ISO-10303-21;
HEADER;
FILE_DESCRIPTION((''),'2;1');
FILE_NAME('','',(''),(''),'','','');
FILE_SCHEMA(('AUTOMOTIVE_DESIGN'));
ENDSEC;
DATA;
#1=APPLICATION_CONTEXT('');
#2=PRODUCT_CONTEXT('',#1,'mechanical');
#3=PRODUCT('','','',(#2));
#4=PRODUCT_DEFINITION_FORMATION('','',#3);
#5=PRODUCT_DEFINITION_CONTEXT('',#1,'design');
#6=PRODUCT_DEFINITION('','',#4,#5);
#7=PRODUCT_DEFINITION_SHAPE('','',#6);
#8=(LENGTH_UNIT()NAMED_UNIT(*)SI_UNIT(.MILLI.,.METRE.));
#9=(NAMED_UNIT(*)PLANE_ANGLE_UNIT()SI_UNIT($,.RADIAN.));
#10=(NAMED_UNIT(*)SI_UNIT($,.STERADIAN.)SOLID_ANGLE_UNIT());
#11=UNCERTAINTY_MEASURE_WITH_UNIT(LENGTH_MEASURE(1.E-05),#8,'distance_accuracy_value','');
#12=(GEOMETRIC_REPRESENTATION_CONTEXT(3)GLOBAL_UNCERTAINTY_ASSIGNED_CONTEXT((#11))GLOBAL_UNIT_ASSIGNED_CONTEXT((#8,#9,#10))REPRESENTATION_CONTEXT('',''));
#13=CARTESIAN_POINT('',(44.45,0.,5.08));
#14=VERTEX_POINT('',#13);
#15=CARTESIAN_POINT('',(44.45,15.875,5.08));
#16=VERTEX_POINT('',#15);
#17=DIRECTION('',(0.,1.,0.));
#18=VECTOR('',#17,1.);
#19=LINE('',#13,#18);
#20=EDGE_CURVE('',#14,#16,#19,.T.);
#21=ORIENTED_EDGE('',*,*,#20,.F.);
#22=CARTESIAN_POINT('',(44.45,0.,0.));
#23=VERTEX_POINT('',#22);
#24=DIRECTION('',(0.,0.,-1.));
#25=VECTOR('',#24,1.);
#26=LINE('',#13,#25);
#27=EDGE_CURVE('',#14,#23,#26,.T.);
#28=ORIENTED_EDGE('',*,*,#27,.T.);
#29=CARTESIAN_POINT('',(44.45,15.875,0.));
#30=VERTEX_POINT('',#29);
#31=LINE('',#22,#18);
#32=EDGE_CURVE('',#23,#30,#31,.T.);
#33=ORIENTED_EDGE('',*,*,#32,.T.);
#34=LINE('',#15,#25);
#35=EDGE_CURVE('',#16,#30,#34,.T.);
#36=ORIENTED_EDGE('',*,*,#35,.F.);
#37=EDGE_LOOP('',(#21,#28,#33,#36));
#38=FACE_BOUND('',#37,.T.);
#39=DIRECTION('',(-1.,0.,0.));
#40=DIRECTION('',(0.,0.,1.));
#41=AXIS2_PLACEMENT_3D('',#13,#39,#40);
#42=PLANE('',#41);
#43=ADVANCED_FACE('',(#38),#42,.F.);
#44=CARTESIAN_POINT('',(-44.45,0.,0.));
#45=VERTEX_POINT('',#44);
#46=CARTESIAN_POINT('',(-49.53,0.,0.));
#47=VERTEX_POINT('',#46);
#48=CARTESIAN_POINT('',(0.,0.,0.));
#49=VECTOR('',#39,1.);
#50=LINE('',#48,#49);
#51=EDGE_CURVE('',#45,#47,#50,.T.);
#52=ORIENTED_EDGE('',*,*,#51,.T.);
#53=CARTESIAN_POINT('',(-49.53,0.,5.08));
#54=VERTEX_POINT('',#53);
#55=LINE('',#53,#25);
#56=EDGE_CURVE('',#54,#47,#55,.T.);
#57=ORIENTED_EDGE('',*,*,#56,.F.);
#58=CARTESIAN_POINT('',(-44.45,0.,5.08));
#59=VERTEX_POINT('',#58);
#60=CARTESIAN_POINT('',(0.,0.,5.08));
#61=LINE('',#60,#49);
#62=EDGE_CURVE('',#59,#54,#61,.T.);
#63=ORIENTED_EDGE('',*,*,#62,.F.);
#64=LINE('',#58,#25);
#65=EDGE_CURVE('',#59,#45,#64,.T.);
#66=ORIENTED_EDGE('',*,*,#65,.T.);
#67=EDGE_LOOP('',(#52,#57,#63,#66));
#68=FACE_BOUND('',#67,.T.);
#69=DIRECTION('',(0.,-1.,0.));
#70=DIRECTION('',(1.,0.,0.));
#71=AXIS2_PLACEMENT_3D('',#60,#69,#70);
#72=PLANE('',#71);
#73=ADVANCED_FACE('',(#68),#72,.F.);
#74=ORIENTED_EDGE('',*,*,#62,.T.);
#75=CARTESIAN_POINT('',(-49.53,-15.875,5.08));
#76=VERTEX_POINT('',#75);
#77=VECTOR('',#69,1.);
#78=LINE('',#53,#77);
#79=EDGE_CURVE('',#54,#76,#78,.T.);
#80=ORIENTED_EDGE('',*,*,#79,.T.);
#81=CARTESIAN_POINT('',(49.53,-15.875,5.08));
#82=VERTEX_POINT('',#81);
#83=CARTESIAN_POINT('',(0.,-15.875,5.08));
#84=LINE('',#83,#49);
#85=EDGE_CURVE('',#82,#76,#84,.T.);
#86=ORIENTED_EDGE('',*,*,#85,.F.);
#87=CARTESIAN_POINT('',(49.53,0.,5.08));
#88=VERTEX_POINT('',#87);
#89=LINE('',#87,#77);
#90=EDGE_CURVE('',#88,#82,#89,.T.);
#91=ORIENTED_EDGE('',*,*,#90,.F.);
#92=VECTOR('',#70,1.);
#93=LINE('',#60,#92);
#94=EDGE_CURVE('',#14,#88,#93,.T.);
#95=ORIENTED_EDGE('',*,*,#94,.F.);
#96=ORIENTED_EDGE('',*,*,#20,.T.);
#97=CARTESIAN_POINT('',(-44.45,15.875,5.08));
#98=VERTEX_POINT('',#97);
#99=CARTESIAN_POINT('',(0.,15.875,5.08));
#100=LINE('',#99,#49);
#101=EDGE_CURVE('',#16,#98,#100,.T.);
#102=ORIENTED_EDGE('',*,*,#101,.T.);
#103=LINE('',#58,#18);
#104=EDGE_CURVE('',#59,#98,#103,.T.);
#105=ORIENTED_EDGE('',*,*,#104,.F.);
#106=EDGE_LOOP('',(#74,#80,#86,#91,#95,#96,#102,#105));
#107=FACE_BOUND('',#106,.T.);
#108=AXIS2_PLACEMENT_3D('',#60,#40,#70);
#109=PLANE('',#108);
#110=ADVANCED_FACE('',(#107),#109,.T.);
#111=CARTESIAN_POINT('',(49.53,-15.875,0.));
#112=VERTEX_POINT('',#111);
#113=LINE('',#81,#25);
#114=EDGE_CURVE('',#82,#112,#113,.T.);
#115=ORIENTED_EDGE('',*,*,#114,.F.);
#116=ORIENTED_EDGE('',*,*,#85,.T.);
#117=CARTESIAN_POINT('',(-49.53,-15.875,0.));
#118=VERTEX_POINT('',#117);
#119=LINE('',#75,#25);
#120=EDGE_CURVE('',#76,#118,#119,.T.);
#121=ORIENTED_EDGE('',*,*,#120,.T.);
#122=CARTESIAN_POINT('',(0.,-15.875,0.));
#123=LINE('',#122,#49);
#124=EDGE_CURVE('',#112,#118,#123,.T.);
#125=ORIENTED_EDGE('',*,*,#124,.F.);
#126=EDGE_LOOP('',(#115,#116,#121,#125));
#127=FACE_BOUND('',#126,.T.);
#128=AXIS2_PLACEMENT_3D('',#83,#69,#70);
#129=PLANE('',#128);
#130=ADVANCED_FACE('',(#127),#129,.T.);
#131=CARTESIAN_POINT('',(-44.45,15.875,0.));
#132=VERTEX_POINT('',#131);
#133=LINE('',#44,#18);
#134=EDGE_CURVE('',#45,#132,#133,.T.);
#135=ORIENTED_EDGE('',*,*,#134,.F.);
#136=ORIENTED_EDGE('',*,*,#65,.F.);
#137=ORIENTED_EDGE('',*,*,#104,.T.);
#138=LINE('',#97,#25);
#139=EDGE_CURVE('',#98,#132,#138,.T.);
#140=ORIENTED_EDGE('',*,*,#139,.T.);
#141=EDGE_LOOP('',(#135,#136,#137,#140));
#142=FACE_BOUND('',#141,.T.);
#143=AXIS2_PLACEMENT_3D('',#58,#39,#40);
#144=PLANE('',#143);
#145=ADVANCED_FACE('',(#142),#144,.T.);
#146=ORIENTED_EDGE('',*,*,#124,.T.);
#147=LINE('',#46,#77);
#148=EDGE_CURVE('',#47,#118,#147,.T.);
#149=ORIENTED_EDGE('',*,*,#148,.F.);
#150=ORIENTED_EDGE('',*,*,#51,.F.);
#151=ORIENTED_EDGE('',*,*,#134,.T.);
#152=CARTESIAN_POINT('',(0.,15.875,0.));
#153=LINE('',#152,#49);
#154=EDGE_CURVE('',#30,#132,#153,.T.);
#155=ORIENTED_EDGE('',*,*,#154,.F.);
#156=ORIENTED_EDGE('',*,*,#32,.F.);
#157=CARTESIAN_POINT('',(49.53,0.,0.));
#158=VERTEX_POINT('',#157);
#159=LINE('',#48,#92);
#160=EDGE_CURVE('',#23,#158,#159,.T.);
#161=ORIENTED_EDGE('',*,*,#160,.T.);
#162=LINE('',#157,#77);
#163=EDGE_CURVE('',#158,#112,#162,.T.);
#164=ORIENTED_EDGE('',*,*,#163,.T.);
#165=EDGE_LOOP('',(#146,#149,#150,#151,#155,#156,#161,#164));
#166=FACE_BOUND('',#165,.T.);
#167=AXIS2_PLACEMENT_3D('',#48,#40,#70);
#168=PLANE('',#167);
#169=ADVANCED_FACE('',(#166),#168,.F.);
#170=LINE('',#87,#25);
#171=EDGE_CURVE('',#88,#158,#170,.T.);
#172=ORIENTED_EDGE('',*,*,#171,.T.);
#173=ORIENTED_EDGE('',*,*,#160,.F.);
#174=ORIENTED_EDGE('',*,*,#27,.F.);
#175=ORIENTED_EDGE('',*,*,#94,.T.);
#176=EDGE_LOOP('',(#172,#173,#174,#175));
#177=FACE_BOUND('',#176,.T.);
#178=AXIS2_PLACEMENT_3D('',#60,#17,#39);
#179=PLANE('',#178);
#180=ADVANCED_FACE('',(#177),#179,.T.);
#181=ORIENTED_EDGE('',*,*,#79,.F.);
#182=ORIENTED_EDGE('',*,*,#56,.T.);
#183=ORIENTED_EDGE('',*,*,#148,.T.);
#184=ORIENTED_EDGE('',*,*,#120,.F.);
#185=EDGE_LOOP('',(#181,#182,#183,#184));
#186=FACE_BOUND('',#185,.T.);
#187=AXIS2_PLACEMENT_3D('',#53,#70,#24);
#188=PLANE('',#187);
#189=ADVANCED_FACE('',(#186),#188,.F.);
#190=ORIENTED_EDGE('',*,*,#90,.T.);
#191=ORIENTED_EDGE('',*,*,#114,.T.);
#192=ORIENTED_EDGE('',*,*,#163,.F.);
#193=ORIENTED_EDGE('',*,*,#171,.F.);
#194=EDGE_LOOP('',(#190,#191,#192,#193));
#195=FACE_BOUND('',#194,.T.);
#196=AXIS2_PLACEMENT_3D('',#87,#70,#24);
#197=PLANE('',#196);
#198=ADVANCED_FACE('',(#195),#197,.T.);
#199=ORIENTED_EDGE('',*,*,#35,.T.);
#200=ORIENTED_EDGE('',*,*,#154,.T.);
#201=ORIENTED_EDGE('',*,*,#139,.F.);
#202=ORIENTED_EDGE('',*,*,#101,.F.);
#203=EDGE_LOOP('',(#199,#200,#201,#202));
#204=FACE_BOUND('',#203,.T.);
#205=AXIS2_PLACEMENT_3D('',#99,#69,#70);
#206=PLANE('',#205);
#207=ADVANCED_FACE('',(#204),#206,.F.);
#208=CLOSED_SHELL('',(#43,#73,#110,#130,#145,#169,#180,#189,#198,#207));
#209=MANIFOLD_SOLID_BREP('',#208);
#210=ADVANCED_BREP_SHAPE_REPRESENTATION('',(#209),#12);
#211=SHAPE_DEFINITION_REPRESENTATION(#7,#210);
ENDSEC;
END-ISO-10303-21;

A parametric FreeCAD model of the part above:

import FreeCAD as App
import Part
import Sketcher
Q = App.Units.Quantity

doc = App.newDocument("Part")
body = doc.addObject("PartDesign::Body", "Body")

sketch1 = doc.addObject("Sketcher::SketchObject", "Sketch")
body.addObject(sketch1)
sketch1.AttachmentSupport = (doc.XY_Plane, [""])
sketch1.MapMode = "FlatFace"
sketch1.addGeometry([
    Part.LineSegment(App.Vector(-50, 0, 0), App.Vector(-50, -16, 0)),
    Part.LineSegment(App.Vector(-50, -16, 0), App.Vector(50, -16, 0)),
    Part.LineSegment(App.Vector(50, -16, 0), App.Vector(50, 0, 0)),
    Part.LineSegment(App.Vector(50, 0, 0), App.Vector(44, 0, 0)),
    Part.LineSegment(App.Vector(44, 0, 0), App.Vector(44, 16, 0)),
    Part.LineSegment(App.Vector(44, 16, 0), App.Vector(-44, 16, 0)),
    Part.LineSegment(App.Vector(-44, 16, 0), App.Vector(-44, 0, 0)),
    Part.LineSegment(App.Vector(-44, 0, 0), App.Vector(-50, 0, 0)),
], False)
sketch1.addConstraint([
    Sketcher.Constraint("Coincident", 0, 2, 1, 1),
    Sketcher.Constraint("Coincident", 1, 2, 2, 1),
    Sketcher.Constraint("Coincident", 2, 2, 3, 1),
    Sketcher.Constraint("Coincident", 3, 2, 4, 1),
    Sketcher.Constraint("Coincident", 4, 2, 5, 1),
    Sketcher.Constraint("Coincident", 5, 2, 6, 1),
    Sketcher.Constraint("Coincident", 6, 2, 7, 1),
    Sketcher.Constraint("Coincident", 7, 2, 0, 1),
    Sketcher.Constraint("Vertical", 0),
    Sketcher.Constraint("Horizontal", 1),
    Sketcher.Constraint("Vertical", 2),
    Sketcher.Constraint("Horizontal", 3),
    Sketcher.Constraint("Vertical", 4),
    Sketcher.Constraint("Horizontal", 5),
    Sketcher.Constraint("Vertical", 6),
    Sketcher.Constraint("Horizontal", 7),
    Sketcher.Constraint("Symmetric", 3, 2, 6, 2, -1, 1),
    Sketcher.Constraint("Symmetric", 2, 2, 7, 2, -2),
    Sketcher.Constraint("Equal", 2, 4),
    Sketcher.Constraint("DistanceX", 1, 1, 1, 2, Q("3.9 in")),
    Sketcher.Constraint("DistanceX", 3, 2, 3, 1, Q("0.2 in")),
    Sketcher.Constraint("DistanceY", 0, 2, 0, 1, Q("0.625 in")),
])
pad1 = doc.addObject("PartDesign::Pad", "Pad")
body.addObject(pad1)
pad1.Profile = sketch1
pad1.Length = Q("0.2 in")

doc.recompute()
